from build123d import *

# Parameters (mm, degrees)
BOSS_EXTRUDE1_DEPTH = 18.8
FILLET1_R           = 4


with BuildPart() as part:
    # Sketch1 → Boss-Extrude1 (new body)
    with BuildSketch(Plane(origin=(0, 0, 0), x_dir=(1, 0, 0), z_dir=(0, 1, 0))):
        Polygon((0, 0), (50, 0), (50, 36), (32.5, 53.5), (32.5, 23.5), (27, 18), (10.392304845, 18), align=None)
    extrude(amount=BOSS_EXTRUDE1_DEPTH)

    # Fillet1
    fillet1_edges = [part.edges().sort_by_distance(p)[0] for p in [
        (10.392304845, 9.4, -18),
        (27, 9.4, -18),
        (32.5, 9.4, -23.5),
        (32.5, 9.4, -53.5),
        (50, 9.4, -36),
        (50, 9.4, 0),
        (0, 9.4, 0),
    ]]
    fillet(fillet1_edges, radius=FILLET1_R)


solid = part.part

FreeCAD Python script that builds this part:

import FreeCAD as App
import Part
import Sketcher

V = App.Vector
Q = App.Units.Quantity


def edges_at(feature, points):
    """Names of the edges that pass closest to the given points."""
    edges = feature.Shape.Edges
    near = lambda p: min(range(len(edges)), key=lambda i: edges[i].distToShape(Part.Vertex(*p))[0])
    return sorted({f"Edge{near(p) + 1}" for p in points})

doc = App.newDocument("Part")
params = doc.addObject("Spreadsheet::Sheet", "Params")
for row, (alias, value) in enumerate([
    ("sketch1_width", "50 mm"),
    ("sketch1_height", "36 mm"),
    ("sketch1_height2", "30 mm"),
    ("pad1_length", "18.8 mm"),
    ("fillet_radius", "4 mm"),
], start=1):
    params.set(f"A{row}", alias)
    params.set(f"B{row}", "=" + value)
    params.setAlias(f"B{row}", alias)

body = doc.addObject("PartDesign::Body", "Body")

sketch1 = doc.addObject("Sketcher::SketchObject", "Sketch")
body.addObject(sketch1)
sketch1.AttachmentSupport = (doc.XZ_Plane, [""])
sketch1.MapMode = "FlatFace"
sketch1.addGeometry([
    Part.LineSegment(V(0, 0, 0), V(50, 0, 0)),
    Part.LineSegment(V(50, 0, 0), V(50, -36, 0)),
    Part.LineSegment(V(50, -36, 0), V(32, -54, 0)),
    Part.LineSegment(V(32, -54, 0), V(32, -24, 0)),
    Part.LineSegment(V(32, -24, 0), V(27, -18, 0)),
    Part.LineSegment(V(27, -18, 0), V(10, -18, 0)),
    Part.LineSegment(V(10, -18, 0), V(0, 0, 0)),
], False)
sketch1.addConstraint([
    Sketcher.Constraint("Coincident", 0, 2, 1, 1),
    Sketcher.Constraint("Coincident", 1, 2, 2, 1),
    Sketcher.Constraint("Coincident", 2, 2, 3, 1),
    Sketcher.Constraint("Coincident", 3, 2, 4, 1),
    Sketcher.Constraint("Coincident", 4, 2, 5, 1),
    Sketcher.Constraint("Coincident", 5, 2, 6, 1),
    Sketcher.Constraint("Coincident", 6, 2, 0, 1),
    Sketcher.Constraint("Horizontal", 0),
    Sketcher.Constraint("Vertical", 1),
    Sketcher.Constraint("Vertical", 3),
    Sketcher.Constraint("Horizontal", 5),
    Sketcher.Constraint("Coincident", 6, 2, -1, 1),
    Sketcher.Constraint("Perpendicular", 2, 4),
    Sketcher.Constraint("DistanceX", 0, 1, 0, 2, Q("50 mm")),
    Sketcher.Constraint("DistanceY", 1, 2, 1, 1, Q("36 mm")),
    Sketcher.Constraint("DistanceY", 3, 1, 3, 2, Q("30 mm")),
    Sketcher.Constraint("Angle", 2, Q("-135 deg")),
    Sketcher.Constraint("Angle", 6, Q("120 deg")),
    Sketcher.Constraint("DistanceX", -1, 1, 4, 2, Q("27 mm")),
    Sketcher.Constraint("DistanceY", 4, 2, -1, 1, Q("18 mm")),
])
sketch1.setExpression("Constraints[13]", "Params.sketch1_width")
sketch1.setExpression("Constraints[14]", "Params.sketch1_height")
sketch1.setExpression("Constraints[15]", "Params.sketch1_height2")
pad1 = doc.addObject("PartDesign::Pad", "Pad")
body.addObject(pad1)
pad1.Profile = sketch1
pad1.setExpression("Length", "Params.pad1_length")
pad1.Reversed = True
doc.recompute()

fillet = doc.addObject("PartDesign::Fillet", "Fillet")
body.addObject(fillet)
fillet.Base = (pad1, edges_at(pad1, [
    (10.392, 9.4, -18),
    (27, 9.4, -18),
    (32.5, 9.4, -23.5),
    (32.5, 9.4, -53.5),
    (50, 9.4, -36),
    (50, 9.4, 0),
    (0, 9.4, 0),
]))
fillet.setExpression("Radius", "Params.fillet_radius")

doc.recompute()
